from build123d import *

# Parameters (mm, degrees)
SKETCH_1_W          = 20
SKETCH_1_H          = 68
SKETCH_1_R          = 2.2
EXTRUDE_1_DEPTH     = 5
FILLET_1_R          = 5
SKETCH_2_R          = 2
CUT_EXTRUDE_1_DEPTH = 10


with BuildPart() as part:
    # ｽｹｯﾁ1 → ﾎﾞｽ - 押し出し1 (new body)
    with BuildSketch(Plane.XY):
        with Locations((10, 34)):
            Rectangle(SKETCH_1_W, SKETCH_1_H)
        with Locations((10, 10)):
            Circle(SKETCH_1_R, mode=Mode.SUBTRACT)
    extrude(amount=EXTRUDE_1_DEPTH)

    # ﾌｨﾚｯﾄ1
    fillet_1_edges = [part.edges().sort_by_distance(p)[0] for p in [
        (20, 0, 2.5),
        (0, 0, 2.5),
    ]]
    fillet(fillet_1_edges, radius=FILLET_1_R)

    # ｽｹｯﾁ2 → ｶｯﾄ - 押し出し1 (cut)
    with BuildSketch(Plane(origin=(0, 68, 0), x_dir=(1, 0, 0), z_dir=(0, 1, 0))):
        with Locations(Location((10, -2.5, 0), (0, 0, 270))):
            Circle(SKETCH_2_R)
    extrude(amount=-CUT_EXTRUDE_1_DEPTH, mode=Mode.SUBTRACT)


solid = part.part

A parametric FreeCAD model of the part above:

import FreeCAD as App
import Part
import Sketcher

V = App.Vector


def edges_at(feature, points):
    """Names of the edges that pass closest to the given points."""
    edges = feature.Shape.Edges
    near = lambda p: min(range(len(edges)), key=lambda i: edges[i].distToShape(Part.Vertex(*p))[0])
    return sorted({f"Edge{near(p) + 1}" for p in points})


def add_polygon(sketch, points):
    """Adds a closed chain of lines whose ends are joined by coincident constraints."""
    first, n = sketch.GeometryCount, len(points)
    for a, b in zip(points, points[1:] + points[:1]):
        sketch.addGeometry(Part.LineSegment(App.Vector(*a, 0), App.Vector(*b, 0)), False)
    for i in range(n):
        sketch.addConstraint(Sketcher.Constraint("Coincident", first + i, 2, first + (i + 1) % n, 1))

doc = App.newDocument("Part")
body = doc.addObject("PartDesign::Body", "Body")

# Sketch on XY plane
sketch1 = body.newObject("Sketcher::SketchObject", "Sketch")
sketch1.AttachmentSupport = (doc.getObject("XY_Plane"), [""])
sketch1.MapMode = "FlatFace"
add_polygon(sketch1, [(0, 68), (0, 0), (20, 0), (20, 68)])  # lines 0-3
sketch1.addGeometry(Part.Circle(V(10, 10, 0), V(0, 0, 1), 2.2), False)  # 4
sketch1.addConstraint(Sketcher.Constraint("Vertical", 0))
sketch1.addConstraint(Sketcher.Constraint("Horizontal", 1))
sketch1.addConstraint(Sketcher.Constraint("Vertical", 2))
sketch1.addConstraint(Sketcher.Constraint("Horizontal", 3))
sketch1.addConstraint(Sketcher.Constraint("Coincident", 0, 2, -1, 1))
sketch1.addConstraint(Sketcher.Constraint("Diameter", 4, 4.4))
sketch1.addConstraint(Sketcher.Constraint("DistanceX", 1, 1, 1, 2, 20.0))
sketch1.addConstraint(Sketcher.Constraint("DistanceY", 0, 2, 0, 1, 68.0))
sketch1.addConstraint(Sketcher.Constraint("DistanceX", -1, 1, 4, 3, 10.0))
sketch1.addConstraint(Sketcher.Constraint("DistanceY", -1, 1, 4, 3, 10.0))
pad1 = body.newObject("PartDesign::Pad", "Pad")
pad1.Profile = sketch1
pad1.Length = 5
doc.recompute()

fillet = body.newObject("PartDesign::Fillet", "Fillet")
fillet.Base = (pad1, edges_at(pad1, [(20, 0, 2.5), (0, 0, 2.5)]))
fillet.Radius = 5

# Sketch on XZ plane
sketch2 = body.newObject("Sketcher::SketchObject", "Sketch001")
sketch2.AttachmentSupport = (doc.getObject("XZ_Plane"), [""])
sketch2.MapMode = "FlatFace"
sketch2.AttachmentOffset = App.Placement(V(0, 0, -68), App.Rotation())
sketch2.addGeometry(Part.Circle(V(10, 2.5, 0), V(0, 0, 1), 2), False)
sketch2.addConstraint(Sketcher.Constraint("Diameter", 0, 4.0))
sketch2.addConstraint(Sketcher.Constraint("DistanceX", -1, 1, 0, 3, 10.0))
sketch2.addConstraint(Sketcher.Constraint("DistanceY", -1, 1, 0, 3, 2.5))
pocket1 = body.newObject("PartDesign::Pocket", "Pocket")
pocket1.Profile = sketch2
pocket1.Length = 10
pocket1.Reversed = True

doc.recompute()
